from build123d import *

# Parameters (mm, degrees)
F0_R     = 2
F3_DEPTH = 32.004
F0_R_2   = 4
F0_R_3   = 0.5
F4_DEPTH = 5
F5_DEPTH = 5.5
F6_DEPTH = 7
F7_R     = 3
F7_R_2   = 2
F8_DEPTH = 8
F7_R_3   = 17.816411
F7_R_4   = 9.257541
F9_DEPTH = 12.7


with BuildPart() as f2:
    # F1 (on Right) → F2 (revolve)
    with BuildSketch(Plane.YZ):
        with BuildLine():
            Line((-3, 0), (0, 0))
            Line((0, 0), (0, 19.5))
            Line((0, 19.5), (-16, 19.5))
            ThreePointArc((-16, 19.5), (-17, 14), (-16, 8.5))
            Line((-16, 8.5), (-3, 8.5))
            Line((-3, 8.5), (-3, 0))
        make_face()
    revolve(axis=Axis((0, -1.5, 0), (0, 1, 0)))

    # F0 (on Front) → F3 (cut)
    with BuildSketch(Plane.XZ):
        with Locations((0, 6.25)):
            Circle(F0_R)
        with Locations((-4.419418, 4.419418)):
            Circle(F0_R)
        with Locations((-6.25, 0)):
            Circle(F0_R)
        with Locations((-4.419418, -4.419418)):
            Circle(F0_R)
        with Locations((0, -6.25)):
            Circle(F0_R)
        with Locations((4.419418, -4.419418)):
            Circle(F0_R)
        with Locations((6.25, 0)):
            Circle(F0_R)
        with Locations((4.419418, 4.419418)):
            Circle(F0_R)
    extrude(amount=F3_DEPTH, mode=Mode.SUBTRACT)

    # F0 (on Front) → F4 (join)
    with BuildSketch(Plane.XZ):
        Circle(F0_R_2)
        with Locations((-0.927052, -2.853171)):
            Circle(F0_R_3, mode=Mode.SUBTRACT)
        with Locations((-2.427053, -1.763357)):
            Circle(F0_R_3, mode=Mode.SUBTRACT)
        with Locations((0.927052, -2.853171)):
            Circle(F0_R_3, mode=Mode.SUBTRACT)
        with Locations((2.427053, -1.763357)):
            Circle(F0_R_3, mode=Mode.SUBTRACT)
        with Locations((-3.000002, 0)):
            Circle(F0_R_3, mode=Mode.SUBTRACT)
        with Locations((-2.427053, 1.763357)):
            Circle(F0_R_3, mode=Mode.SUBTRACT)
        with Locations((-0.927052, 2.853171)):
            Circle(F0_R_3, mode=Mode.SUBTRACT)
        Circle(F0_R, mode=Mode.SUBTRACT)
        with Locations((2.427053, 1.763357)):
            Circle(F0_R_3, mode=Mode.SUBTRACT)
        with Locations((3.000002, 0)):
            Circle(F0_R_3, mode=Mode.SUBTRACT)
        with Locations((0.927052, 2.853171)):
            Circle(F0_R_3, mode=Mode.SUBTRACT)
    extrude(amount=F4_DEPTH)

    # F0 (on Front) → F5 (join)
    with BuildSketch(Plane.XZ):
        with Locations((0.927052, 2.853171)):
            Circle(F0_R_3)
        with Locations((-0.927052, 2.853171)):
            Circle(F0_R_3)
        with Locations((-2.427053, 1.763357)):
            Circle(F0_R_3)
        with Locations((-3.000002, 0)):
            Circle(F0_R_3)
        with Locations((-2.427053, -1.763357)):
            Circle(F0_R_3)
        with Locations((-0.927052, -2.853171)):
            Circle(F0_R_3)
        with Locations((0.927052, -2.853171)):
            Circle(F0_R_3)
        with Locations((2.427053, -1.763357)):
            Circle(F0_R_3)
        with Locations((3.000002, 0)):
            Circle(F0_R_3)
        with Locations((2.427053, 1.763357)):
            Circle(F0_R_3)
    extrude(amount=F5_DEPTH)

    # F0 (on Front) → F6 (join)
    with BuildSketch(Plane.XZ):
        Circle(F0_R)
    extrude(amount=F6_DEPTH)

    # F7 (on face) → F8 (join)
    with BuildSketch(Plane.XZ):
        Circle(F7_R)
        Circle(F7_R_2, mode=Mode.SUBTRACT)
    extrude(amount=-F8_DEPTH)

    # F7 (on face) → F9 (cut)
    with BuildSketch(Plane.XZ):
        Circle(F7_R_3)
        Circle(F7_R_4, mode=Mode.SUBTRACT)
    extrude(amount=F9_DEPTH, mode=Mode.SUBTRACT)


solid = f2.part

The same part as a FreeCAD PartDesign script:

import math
import FreeCAD as App
import Part
import Sketcher

doc = App.newDocument("Part")
params = doc.addObject("Spreadsheet::Sheet", "Params")
for row, (alias, value) in enumerate([
    ("sketch1_width", "3 mm"),
    ("sketch1_width2", "16 mm"),
    ("sketch1_height", "19.5 mm"),
    ("sketch1_height2", "8.5 mm"),
    ("revolution_angle", "360 deg"),
    ("sketch2_diameter", "4 mm"),
    ("pocket1_length", "32.004 mm"),
    ("sketch3_diameter", "8 mm"),
    ("sketch3_diameter2", "1 mm"),
    ("sketch3_diameter3", "4 mm"),
    ("pad1_length", "5 mm"),
    ("sketch4_diameter", "1 mm"),
    ("pad2_length", "5.5 mm"),
    ("sketch5_diameter", "4 mm"),
    ("pad3_length", "7 mm"),
    ("sketch6_diameter", "6 mm"),
    ("sketch6_diameter2", "4 mm"),
    ("pad4_length", "8 mm"),
    ("pocket2_length", "12.7 mm"),
], start=1):
    params.set(f"A{row}", alias)
    params.set(f"B{row}", "=" + value)
    params.setAlias(f"B{row}", alias)

body = doc.addObject("PartDesign::Body", "Body")

# Sketch on YZ plane
sketch1 = body.newObject("Sketcher::SketchObject", "Sketch")
sketch1.AttachmentSupport = (doc.getObject("YZ_Plane"), [""])
sketch1.MapMode = "FlatFace"
sketch1.addGeometry([
    Part.LineSegment(App.Vector(-3, 0, 0), App.Vector(0, 0, 0)),  # 0
    Part.LineSegment(App.Vector(0, 0, 0), App.Vector(0, 19.5, 0)),  # 1
    Part.LineSegment(App.Vector(0, 19.5, 0), App.Vector(-16, 19.5, 0)),  # 2
    Part.ArcOfCircle(Part.Circle(App.Vector(-1.375, 14, 0), App.Vector(0, 0, 1), 15.625), math.radians(159.390307), math.radians(200.609693)),  # 3
    Part.LineSegment(App.Vector(-16, 8.5, 0), App.Vector(-3, 8.5, 0)),  # 4
    Part.LineSegment(App.Vector(-3, 8.5, 0), App.Vector(-3, 0, 0)),  # 5
], False)
sketch1.addConstraint([
    Sketcher.Constraint("Coincident", 0, 2, 1, 1),
    Sketcher.Constraint("Coincident", 1, 2, 2, 1),
    Sketcher.Constraint("Coincident", 2, 2, 3, 1),
    Sketcher.Constraint("Coincident", 3, 2, 4, 1),
    Sketcher.Constraint("Coincident", 4, 2, 5, 1),
    Sketcher.Constraint("Coincident", 5, 2, 0, 1),
    Sketcher.Constraint("Horizontal", 0),
    Sketcher.Constraint("Vertical", 1),
    Sketcher.Constraint("Horizontal", 2),
    Sketcher.Constraint("Horizontal", 4),
    Sketcher.Constraint("Vertical", 5),
    Sketcher.Constraint("Coincident", 0, 2, -1, 1),
    Sketcher.Constraint("Vertical", 2, 2, 3, 2),
    Sketcher.Constraint("DistanceX", 0, 1, 0, 2, 3.0),
    Sketcher.Constraint("DistanceX", 2, 2, 2, 1, 16.0),
    Sketcher.Constraint("DistanceY", 1, 1, 1, 2, 19.5),
    Sketcher.Constraint("DistanceY", 5, 2, 5, 1, 8.5),
    Sketcher.Constraint("Radius", 3, 15.625),
])
sketch1.setExpression("Constraints[13]", "Params.sketch1_width")
sketch1.setExpression("Constraints[14]", "Params.sketch1_width2")
sketch1.setExpression("Constraints[15]", "Params.sketch1_height")
sketch1.setExpression("Constraints[16]", "Params.sketch1_height2")
revolution = body.newObject("PartDesign::Revolution", "Revolution")
revolution.Profile = sketch1
revolution.ReferenceAxis = (sketch1, ["H_Axis"])
revolution.setExpression("Angle", "Params.revolution_angle")

# Sketch on XZ plane
sketch2 = body.newObject("Sketcher::SketchObject", "Sketch001")
sketch2.AttachmentSupport = (doc.getObject("XZ_Plane"), [""])
sketch2.MapMode = "FlatFace"
sketch2.addGeometry([
    Part.Circle(App.Vector(0, 6.25, 0), App.Vector(0, 0, 1), 2),  # 0
    Part.Circle(App.Vector(-4.419418, 4.419418, 0), App.Vector(0, 0, 1), 2),  # 1
    Part.Circle(App.Vector(-6.25, 0, 0), App.Vector(0, 0, 1), 2),  # 2
    Part.Circle(App.Vector(-4.419418, -4.419418, 0), App.Vector(0, 0, 1), 2),  # 3
    Part.Circle(App.Vector(0, -6.25, 0), App.Vector(0, 0, 1), 2),  # 4
    Part.Circle(App.Vector(4.419418, -4.419418, 0), App.Vector(0, 0, 1), 2),  # 5
    Part.Circle(App.Vector(6.25, 0, 0), App.Vector(0, 0, 1), 2),  # 6
    Part.Circle(App.Vector(4.419418, 4.419418, 0), App.Vector(0, 0, 1), 2),  # 7
], False)
sketch2.addConstraint([
    Sketcher.Constraint("Equal", 0, 1),
    Sketcher.Constraint("Equal", 1, 2),
    Sketcher.Constraint("Equal", 2, 3),
    Sketcher.Constraint("Equal", 3, 4),
    Sketcher.Constraint("Equal", 4, 5),
    Sketcher.Constraint("Equal", 5, 6),
    Sketcher.Constraint("Equal", 6, 7),
    Sketcher.Constraint("Symmetric", 0, 3, 4, 3, -1, 1),
    Sketcher.Constraint("Symmetric", 1, 3, 5, 3, -1, 1),
    Sketcher.Constraint("Symmetric", 2, 3, 6, 3, -1, 1),
    Sketcher.Constraint("Symmetric", 3, 3, 7, 3, -1, 1),
    Sketcher.Constraint("Symmetric", 3, 3, 5, 3, -2),
    Sketcher.Constraint("PointOnObject", 0, 3, -2),
    Sketcher.Constraint("PointOnObject", 2, 3, -1),
    Sketcher.Constraint("Diameter", 0, 4.0),
    Sketcher.Constraint("DistanceY", 4, 3, 0, 3, 12.5),
    Sketcher.Constraint("DistanceX", 2, 3, -1, 1, 6.25),
    Sketcher.Constraint("DistanceX", 1, 3, -1, 1, 4.419418),
    Sketcher.Constraint("DistanceY", -1, 1, 1, 3, 4.419418),
])
sketch2.setExpression("Constraints[14]", "Params.sketch2_diameter")
pocket1 = body.newObject("PartDesign::Pocket", "Pocket")
pocket1.Profile = sketch2
pocket1.setExpression("Length", "Params.pocket1_length")
pocket1.Reversed = True

# Sketch on XZ plane
sketch3 = body.newObject("Sketcher::SketchObject", "Sketch002")
sketch3.AttachmentSupport = (doc.getObject("XZ_Plane"), [""])
sketch3.MapMode = "FlatFace"
sketch3.addGeometry([
    Part.Circle(App.Vector(0, 0, 0), App.Vector(0, 0, 1), 4),  # 0
    Part.Circle(App.Vector(-2.427053, -1.763357, 0), App.Vector(0, 0, 1), 0.5),  # 1
    Part.Circle(App.Vector(-0.927052, -2.853171, 0), App.Vector(0, 0, 1), 0.5),  # 2
    Part.Circle(App.Vector(0.927052, -2.853171, 0), App.Vector(0, 0, 1), 0.5),  # 3
    Part.Circle(App.Vector(2.427053, -1.763357, 0), App.Vector(0, 0, 1), 0.5),  # 4
    Part.Circle(App.Vector(-3.000002, 0, 0), App.Vector(0, 0, 1), 0.5),  # 5
    Part.Circle(App.Vector(-2.427053, 1.763357, 0), App.Vector(0, 0, 1), 0.5),  # 6
    Part.Circle(App.Vector(-0.927052, 2.853171, 0), App.Vector(0, 0, 1), 0.5),  # 7
    Part.Circle(App.Vector(0, 0, 0), App.Vector(0, 0, 1), 2),  # 8
    Part.Circle(App.Vector(3.000002, 0, 0), App.Vector(0, 0, 1), 0.5),  # 9
    Part.Circle(App.Vector(0.927052, 2.853171, 0), App.Vector(0, 0, 1), 0.5),  # 10
    Part.Circle(App.Vector(2.427053, 1.763357, 0), App.Vector(0, 0, 1), 0.5),  # 11
], False)
sketch3.addConstraint([
    Sketcher.Constraint("Coincident", 0, 3, -1, 1),
    Sketcher.Constraint("Coincident", 8, 3, -1, 1),
    Sketcher.Constraint("Equal", 1, 2),
    Sketcher.Constraint("Equal", 2, 3),
    Sketcher.Constraint("Equal", 3, 4),
    Sketcher.Constraint("Equal", 4, 5),
    Sketcher.Constraint("Equal", 5, 6),
    Sketcher.Constraint("Equal", 6, 7),
    Sketcher.Constraint("Equal", 7, 9),
    Sketcher.Constraint("Equal", 9, 10),
    Sketcher.Constraint("Equal", 10, 11),
    Sketcher.Constraint("Symmetric", 4, 3, 6, 3, -1, 1),
    Sketcher.Constraint("Symmetric", 3, 3, 7, 3, -1, 1),
    Sketcher.Constraint("Symmetric", 5, 3, 9, 3, -1, 1),
    Sketcher.Constraint("Symmetric", 2, 3, 10, 3, -1, 1),
    Sketcher.Constraint("Symmetric", 1, 3, 11, 3, -1, 1),
    Sketcher.Constraint("Symmetric", 2, 3, 3, 3, -2),
    Sketcher.Constraint("Symmetric", 1, 3, 4, 3, -2),
    Sketcher.Constraint("PointOnObject", 5, 3, -1),
    Sketcher.Constraint("Diameter", 0, 8.0),
    Sketcher.Constraint("Diameter", 1, 1.0),
    Sketcher.Constraint("Diameter", 8, 4.0),
    Sketcher.Constraint("DistanceX", 5, 3, -1, 1, 3.000002),
    Sketcher.Constraint("DistanceX", 1, 3, 2, 3, 1.500001),
    Sketcher.Constraint("DistanceX", 2, 3, -1, 1, 0.927052),
    Sketcher.Constraint("DistanceY", 2, 3, -1, 1, 2.853171),
    Sketcher.Constraint("DistanceY", 2, 3, 6, 3, 4.616528),
])
sketch3.setExpression("Constraints[19]", "Params.sketch3_diameter")
sketch3.setExpression("Constraints[20]", "Params.sketch3_diameter2")
sketch3.setExpression("Constraints[21]", "Params.sketch3_diameter3")
pad1 = body.newObject("PartDesign::Pad", "Pad")
pad1.Profile = sketch3
pad1.setExpression("Length", "Params.pad1_length")

# Sketch on XZ plane
sketch4 = body.newObject("Sketcher::SketchObject", "Sketch003")
sketch4.AttachmentSupport = (doc.getObject("XZ_Plane"), [""])
sketch4.MapMode = "FlatFace"
sketch4.addGeometry([
    Part.Circle(App.Vector(0.927052, 2.853171, 0), App.Vector(0, 0, 1), 0.5),  # 0
    Part.Circle(App.Vector(-0.927052, 2.853171, 0), App.Vector(0, 0, 1), 0.5),  # 1
    Part.Circle(App.Vector(-2.427053, 1.763357, 0), App.Vector(0, 0, 1), 0.5),  # 2
    Part.Circle(App.Vector(-3.000002, 0, 0), App.Vector(0, 0, 1), 0.5),  # 3
    Part.Circle(App.Vector(-2.427053, -1.763357, 0), App.Vector(0, 0, 1), 0.5),  # 4
    Part.Circle(App.Vector(-0.927052, -2.853171, 0), App.Vector(0, 0, 1), 0.5),  # 5
    Part.Circle(App.Vector(0.927052, -2.853171, 0), App.Vector(0, 0, 1), 0.5),  # 6
    Part.Circle(App.Vector(2.427053, -1.763357, 0), App.Vector(0, 0, 1), 0.5),  # 7
    Part.Circle(App.Vector(3.000002, 0, 0), App.Vector(0, 0, 1), 0.5),  # 8
    Part.Circle(App.Vector(2.427053, 1.763357, 0), App.Vector(0, 0, 1), 0.5),  # 9
], False)
sketch4.addConstraint([
    Sketcher.Constraint("Equal", 0, 1),
    Sketcher.Constraint("Equal", 1, 2),
    Sketcher.Constraint("Equal", 2, 3),
    Sketcher.Constraint("Equal", 3, 4),
    Sketcher.Constraint("Equal", 4, 5),
    Sketcher.Constraint("Equal", 5, 6),
    Sketcher.Constraint("Equal", 6, 7),
    Sketcher.Constraint("Equal", 7, 8),
    Sketcher.Constraint("Equal", 8, 9),
    Sketcher.Constraint("Symmetric", 0, 3, 5, 3, -1, 1),
    Sketcher.Constraint("Symmetric", 1, 3, 6, 3, -1, 1),
    Sketcher.Constraint("Symmetric", 2, 3, 7, 3, -1, 1),
    Sketcher.Constraint("Symmetric", 3, 3, 8, 3, -1, 1),
    Sketcher.Constraint("Symmetric", 4, 3, 9, 3, -1, 1),
    Sketcher.Constraint("Symmetric", 0, 3, 1, 3, -2),
    Sketcher.Constraint("Symmetric", 4, 3, 7, 3, -2),
    Sketcher.Constraint("PointOnObject", 3, 3, -1),
    Sketcher.Constraint("Diameter", 0, 1.0),
    Sketcher.Constraint("DistanceX", 3, 3, -1, 1, 3.000002),
    Sketcher.Constraint("DistanceX", 2, 3, 1, 3, 1.500001),
    Sketcher.Constraint("DistanceX", -1, 1, 0, 3, 0.927052),
    Sketcher.Constraint("DistanceY", -1, 1, 0, 3, 2.853171),
    Sketcher.Constraint("DistanceY", 4, 3, 1, 3, 4.616528),
])
sketch4.setExpression("Constraints[17]", "Params.sketch4_diameter")
pad2 = body.newObject("PartDesign::Pad", "Pad001")
pad2.Profile = sketch4
pad2.setExpression("Length", "Params.pad2_length")

# Sketch on XZ plane
sketch5 = body.newObject("Sketcher::SketchObject", "Sketch004")
sketch5.AttachmentSupport = (doc.getObject("XZ_Plane"), [""])
sketch5.MapMode = "FlatFace"
sketch5.addGeometry(Part.Circle(App.Vector(0, 0, 0), App.Vector(0, 0, 1), 2), False)
sketch5.addConstraint([
    Sketcher.Constraint("Coincident", 0, 3, -1, 1),
    Sketcher.Constraint("Diameter", 0, 4.0),
])
sketch5.setExpression("Constraints[1]", "Params.sketch5_diameter")
pad3 = body.newObject("PartDesign::Pad", "Pad002")
pad3.Profile = sketch5
pad3.setExpression("Length", "Params.pad3_length")

# Sketch on XZ plane
sketch6 = body.newObject("Sketcher::SketchObject", "Sketch005")
sketch6.AttachmentSupport = (doc.getObject("XZ_Plane"), [""])
sketch6.MapMode = "FlatFace"
sketch6.addGeometry([
    Part.Circle(App.Vector(0, 0, 0), App.Vector(0, 0, 1), 3),
    Part.Circle(App.Vector(0, 0, 0), App.Vector(0, 0, 1), 2),
], False)
sketch6.addConstraint([
    Sketcher.Constraint("Coincident", 0, 3, -1, 1),
    Sketcher.Constraint("Coincident", 1, 3, -1, 1),
    Sketcher.Constraint("Diameter", 0, 6.0),
    Sketcher.Constraint("Diameter", 1, 4.0),
])
sketch6.setExpression("Constraints[2]", "Params.sketch6_diameter")
sketch6.setExpression("Constraints[3]", "Params.sketch6_diameter2")
pad4 = body.newObject("PartDesign::Pad", "Pad003")
pad4.Profile = sketch6
pad4.setExpression("Length", "Params.pad4_length")
pad4.Reversed = True

# Sketch on XZ plane
sketch7 = body.newObject("Sketcher::SketchObject", "Sketch006")
sketch7.AttachmentSupport = (doc.getObject("XZ_Plane"), [""])
sketch7.MapMode = "FlatFace"
sketch7.addGeometry([
    Part.Circle(App.Vector(0, 0, 0), App.Vector(0, 0, 1), 17.816411),
    Part.Circle(App.Vector(0, 0, 0), App.Vector(0, 0, 1), 9.257541),
], False)
sketch7.addConstraint([
    Sketcher.Constraint("Coincident", 0, 3, -1, 1),
    Sketcher.Constraint("Coincident", 1, 3, -1, 1),
    Sketcher.Constraint("Diameter", 0, 35.632822),
    Sketcher.Constraint("Diameter", 1, 18.515082),
])
pocket2 = body.newObject("PartDesign::Pocket", "Pocket001")
pocket2.Profile = sketch7
pocket2.setExpression("Length", "Params.pocket2_length")
pocket2.Reversed = True

doc.recompute()
